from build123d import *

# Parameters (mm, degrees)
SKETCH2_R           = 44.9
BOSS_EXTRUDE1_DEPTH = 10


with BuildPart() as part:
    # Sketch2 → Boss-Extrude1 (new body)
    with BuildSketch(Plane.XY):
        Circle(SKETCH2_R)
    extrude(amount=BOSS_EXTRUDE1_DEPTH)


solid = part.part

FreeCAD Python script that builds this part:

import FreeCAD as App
import Part
import Sketcher
Q = App.Units.Quantity

doc = App.newDocument("Part")
params = doc.addObject("Spreadsheet::Sheet", "Params")
for row, (alias, value) in enumerate([
    ("sketch1_diameter", "89.8 mm"),
    ("pad1_length", "10 mm"),
], start=1):
    params.set(f"A{row}", alias)
    params.set(f"B{row}", "=" + value)
    params.setAlias(f"B{row}", alias)

body = doc.addObject("PartDesign::Body", "Body")

# Sketch on XY plane
sketch1 = body.newObject("Sketcher::SketchObject", "Sketch")
sketch1.AttachmentSupport = (doc.getObject("XY_Plane"), [""])
sketch1.MapMode = "FlatFace"
sketch1.addGeometry(Part.Circle(App.Vector(0, 0, 0), App.Vector(0, 0, 1), 44.9), False)
sketch1.addConstraint([
    Sketcher.Constraint("Coincident", 0, 3, -1, 1),
    Sketcher.Constraint("Diameter", 0, Q("89.8 mm")),
])
sketch1.setExpression("Constraints[1]", "Params.sketch1_diameter")
pad1 = body.newObject("PartDesign::Pad", "Pad")
pad1.Profile = sketch1
pad1.setExpression("Length", "Params.pad1_length")

doc.recompute()
